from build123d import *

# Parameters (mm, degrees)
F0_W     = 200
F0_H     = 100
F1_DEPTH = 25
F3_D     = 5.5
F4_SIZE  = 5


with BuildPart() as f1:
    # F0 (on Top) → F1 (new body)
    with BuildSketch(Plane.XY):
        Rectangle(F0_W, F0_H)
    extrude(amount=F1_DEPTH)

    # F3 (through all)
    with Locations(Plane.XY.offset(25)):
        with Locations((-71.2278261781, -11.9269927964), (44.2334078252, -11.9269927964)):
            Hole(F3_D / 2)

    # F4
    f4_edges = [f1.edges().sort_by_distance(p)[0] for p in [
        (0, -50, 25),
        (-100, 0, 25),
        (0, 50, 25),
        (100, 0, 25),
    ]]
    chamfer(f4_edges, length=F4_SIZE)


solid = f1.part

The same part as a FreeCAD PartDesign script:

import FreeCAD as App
import Part
import Sketcher
from FreeCAD import Vector


def edges_at(feature, points):
    """Names of the edges that pass closest to the given points."""
    edges = feature.Shape.Edges
    near = lambda p: min(range(len(edges)), key=lambda i: edges[i].distToShape(Part.Vertex(*p))[0])
    return sorted({f"Edge{near(p) + 1}" for p in points})

doc = App.newDocument("Part")
body = doc.addObject("PartDesign::Body", "Body")

sketch1 = body.newObject("Sketcher::SketchObject", "Sketch")
sketch1.AttachmentSupport = (doc.getObject("XY_Plane"), [""])
sketch1.MapMode = "FlatFace"
sketch1.addGeometry([
    Part.LineSegment(Vector(-100, 50, 0), Vector(-100, -50, 0)),
    Part.LineSegment(Vector(-100, -50, 0), Vector(100, -50, 0)),
    Part.LineSegment(Vector(100, -50, 0), Vector(100, 50, 0)),
    Part.LineSegment(Vector(100, 50, 0), Vector(-100, 50, 0)),
], False)
sketch1.addConstraint([
    Sketcher.Constraint("Coincident", 0, 2, 1, 1),
    Sketcher.Constraint("Coincident", 1, 2, 2, 1),
    Sketcher.Constraint("Coincident", 2, 2, 3, 1),
    Sketcher.Constraint("Coincident", 3, 2, 0, 1),
    Sketcher.Constraint("Vertical", 0),
    Sketcher.Constraint("Horizontal", 1),
    Sketcher.Constraint("Vertical", 2),
    Sketcher.Constraint("Horizontal", 3),
    Sketcher.Constraint("Symmetric", 0, 2, 2, 2, -1, 1),
    Sketcher.Constraint("DistanceX", 1, 1, 1, 2, 200.0),
    Sketcher.Constraint("DistanceY", 0, 2, 0, 1, 100.0),
])
pad1 = body.newObject("PartDesign::Pad", "Pad")
pad1.Profile = sketch1
pad1.Length = 25

sketch2 = body.newObject("Sketcher::SketchObject", "Sketch001")
sketch2.AttachmentSupport = (doc.getObject("XY_Plane"), [""])
sketch2.MapMode = "FlatFace"
sketch2.AttachmentOffset = App.Placement(Vector(0, 0, 25), App.Rotation())
sketch2.addGeometry([
    Part.Circle(Vector(-71.2, -11.9, 0), Vector(0, 0, 1), 2.8),
    Part.Circle(Vector(44.2, -11.9, 0), Vector(0, 0, 1), 2.8),
], False)
sketch2.addConstraint([
    Sketcher.Constraint("Equal", 0, 1),
    Sketcher.Constraint("Horizontal", 0, 3, 1, 3),
    Sketcher.Constraint("Diameter", 0, 5.5),
    Sketcher.Constraint("DistanceX", 0, 3, -1, 1, 71.227826),
    Sketcher.Constraint("DistanceY", 0, 3, -1, 1, 11.926993),
    Sketcher.Constraint("DistanceX", -1, 1, 1, 3, 44.233408),
])
doc.recompute()
hole = body.newObject("PartDesign::Hole", "Hole")
hole.Profile = sketch2
hole.ThreadType = "None"
hole.Diameter = 5.5
hole.DepthType = "ThroughAll"
doc.recompute()

chamfer = body.newObject("PartDesign::Chamfer", "Chamfer")
chamfer.Base = (hole, edges_at(hole, [
    (0, -50, 25),
    (-100, 0, 25),
    (0, 50, 25),
    (100, 0, 25),
]))
chamfer.Size = 5

doc.recompute()
